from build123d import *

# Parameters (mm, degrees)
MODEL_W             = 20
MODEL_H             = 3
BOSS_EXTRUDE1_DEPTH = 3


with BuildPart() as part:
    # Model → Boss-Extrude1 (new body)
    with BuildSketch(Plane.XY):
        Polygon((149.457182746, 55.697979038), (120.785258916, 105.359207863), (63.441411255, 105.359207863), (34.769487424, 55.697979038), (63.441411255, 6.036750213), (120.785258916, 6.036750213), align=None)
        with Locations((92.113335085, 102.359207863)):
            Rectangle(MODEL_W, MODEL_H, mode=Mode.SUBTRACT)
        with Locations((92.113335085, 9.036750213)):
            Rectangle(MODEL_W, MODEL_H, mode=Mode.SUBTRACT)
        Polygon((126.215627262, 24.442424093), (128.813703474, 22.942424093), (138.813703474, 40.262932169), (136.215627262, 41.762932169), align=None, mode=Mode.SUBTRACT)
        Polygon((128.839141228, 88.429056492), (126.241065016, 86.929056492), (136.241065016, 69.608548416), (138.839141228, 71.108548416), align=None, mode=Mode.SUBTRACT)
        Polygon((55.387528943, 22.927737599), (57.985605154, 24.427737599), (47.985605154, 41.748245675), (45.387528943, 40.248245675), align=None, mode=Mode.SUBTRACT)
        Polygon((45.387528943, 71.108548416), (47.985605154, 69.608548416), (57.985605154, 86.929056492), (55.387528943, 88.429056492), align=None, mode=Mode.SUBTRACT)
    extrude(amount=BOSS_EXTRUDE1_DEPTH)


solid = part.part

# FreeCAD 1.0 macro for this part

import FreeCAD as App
import Part
import Sketcher
from FreeCAD import Vector
Q = App.Units.Quantity


def add_polygon(sketch, points):
    """Adds a closed chain of lines whose ends are joined by coincident constraints."""
    first, n = sketch.GeometryCount, len(points)
    for a, b in zip(points, points[1:] + points[:1]):
        sketch.addGeometry(Part.LineSegment(App.Vector(*a, 0), App.Vector(*b, 0)), False)
    for i in range(n):
        sketch.addConstraint(Sketcher.Constraint("Coincident", first + i, 2, first + (i + 1) % n, 1))

doc = App.newDocument("Part")
body = doc.addObject("PartDesign::Body", "Body")

sketch1 = body.newObject("Sketcher::SketchObject", "Sketch")
sketch1.AttachmentSupport = (doc.getObject("XY_Plane"), [""])
sketch1.MapMode = "FlatFace"
add_polygon(sketch1, [(149.457183, 55.697979), (120.785259, 105.359208), (63.441411, 105.359208), (34.769487, 55.697979), (63.441411, 6.03675), (120.785259, 6.03675)])
add_polygon(sketch1, [(102.113335, 7.53675), (82.113335, 7.53675), (82.113335, 10.53675), (102.113335, 10.53675)])
add_polygon(sketch1, [(57.985605, 24.427738), (55.387529, 22.927738), (45.387529, 40.248246), (47.985605, 41.748246)])
add_polygon(sketch1, [(128.813703, 22.942424), (126.215627, 24.442424), (136.215627, 41.762932), (138.813703, 40.262932)])
add_polygon(sketch1, [(47.985605, 69.608548), (45.387529, 71.108548), (55.387529, 88.429056), (57.985605, 86.929056)])
add_polygon(sketch1, [(102.113335, 100.859208), (82.113335, 100.859208), (82.113335, 103.859208), (102.113335, 103.859208)])
add_polygon(sketch1, [(126.241065, 86.929056), (128.839141, 88.429056), (138.839141, 71.108548), (136.241065, 69.608548)])
sketch1.addConstraint(Sketcher.Constraint("Horizontal", 1))
sketch1.addConstraint(Sketcher.Constraint("Horizontal", 4))
sketch1.addConstraint(Sketcher.Constraint("Horizontal", 6))
sketch1.addConstraint(Sketcher.Constraint("Vertical", 7))
sketch1.addConstraint(Sketcher.Constraint("Horizontal", 8))
sketch1.addConstraint(Sketcher.Constraint("Vertical", 9))
sketch1.addConstraint(Sketcher.Constraint("Horizontal", 22))
sketch1.addConstraint(Sketcher.Constraint("Vertical", 23))
sketch1.addConstraint(Sketcher.Constraint("Horizontal", 24))
sketch1.addConstraint(Sketcher.Constraint("Vertical", 25))
sketch1.addConstraint(Sketcher.Constraint("Parallel", 0, 3))
sketch1.addConstraint(Sketcher.Constraint("Parallel", 2, 5))
sketch1.addConstraint(Sketcher.Constraint("Perpendicular", 3, 10))
sketch1.addConstraint(Sketcher.Constraint("Perpendicular", 10, 11))
sketch1.addConstraint(Sketcher.Constraint("Perpendicular", 11, 12))
sketch1.addConstraint(Sketcher.Constraint("Perpendicular", 12, 13))
sketch1.addConstraint(Sketcher.Constraint("Perpendicular", 5, 14))
sketch1.addConstraint(Sketcher.Constraint("Perpendicular", 14, 15))
sketch1.addConstraint(Sketcher.Constraint("Perpendicular", 15, 16))
sketch1.addConstraint(Sketcher.Constraint("Perpendicular", 16, 17))
sketch1.addConstraint(Sketcher.Constraint("Perpendicular", 17, 18))
sketch1.addConstraint(Sketcher.Constraint("Perpendicular", 18, 19))
sketch1.addConstraint(Sketcher.Constraint("Perpendicular", 19, 20))
sketch1.addConstraint(Sketcher.Constraint("Perpendicular", 20, 21))
sketch1.addConstraint(Sketcher.Constraint("Perpendicular", 13, 26))
sketch1.addConstraint(Sketcher.Constraint("Perpendicular", 26, 27))
sketch1.addConstraint(Sketcher.Constraint("Perpendicular", 27, 28))
sketch1.addConstraint(Sketcher.Constraint("Perpendicular", 28, 29))
sketch1.addConstraint(Sketcher.Constraint("Horizontal", 2, 2, 5, 2))
sketch1.addConstraint(Sketcher.Constraint("Horizontal", 19, 2, 26, 2))
sketch1.addConstraint(Sketcher.Constraint("Horizontal", 18, 2, 27, 2))
sketch1.addConstraint(Sketcher.Constraint("Horizontal", 21, 2, 28, 2))
sketch1.addConstraint(Sketcher.Constraint("Vertical", 1, 2, 3, 2))
sketch1.addConstraint(Sketcher.Constraint("Vertical", 0, 2, 4, 2))
sketch1.addConstraint(Sketcher.Constraint("Vertical", 11, 2, 18, 2))
sketch1.addConstraint(Sketcher.Constraint("Vertical", 10, 2, 19, 2))
sketch1.addConstraint(Sketcher.Constraint("Vertical", 13, 2, 20, 2))
sketch1.addConstraint(Sketcher.Constraint("Vertical", 7, 2, 22, 2))
sketch1.addConstraint(Sketcher.Constraint("Vertical", 9, 2, 24, 2))
sketch1.addConstraint(Sketcher.Constraint("Equal", 9, 23))
sketch1.addConstraint(Sketcher.Constraint("Equal", 12, 14))
sketch1.addConstraint(Sketcher.Constraint("Equal", 13, 15))
sketch1.addConstraint(Sketcher.Constraint("DistanceX", 6, 2, 6, 1, 20.0))
sketch1.addConstraint(Sketcher.Constraint("DistanceY", 7, 1, 7, 2, 3.0))
sketch1.addConstraint(Sketcher.Constraint("Angle", 0, Q("120 deg")))
sketch1.addConstraint(Sketcher.Constraint("Distance", 10, 3.0))
sketch1.addConstraint(Sketcher.Constraint("Distance", 11, 20.0))
sketch1.addConstraint(Sketcher.Constraint("DistanceY", 3, 2, 6, 2, 1.5))
sketch1.addConstraint(Sketcher.Constraint("DistanceY", 22, 2, 1, 2, 4.5))
sketch1.addConstraint(Sketcher.Constraint("DistanceX", 1, 2, 1, 1, 57.343848))
sketch1.addConstraint(Sketcher.Constraint("DistanceX", -1, 1, 0, 2, 120.785259))
sketch1.addConstraint(Sketcher.Constraint("DistanceY", -1, 1, 2, 2, 55.697979))
sketch1.addConstraint(Sketcher.Constraint("DistanceY", -1, 1, 3, 2, 6.03675))
sketch1.addConstraint(Sketcher.Constraint("DistanceX", -1, 1, 10, 2, 55.387529))
sketch1.addConstraint(Sketcher.Constraint("DistanceY", -1, 1, 18, 2, 71.108548))
sketch1.addConstraint(Sketcher.Constraint("DistanceX", -1, 1, 26, 2, 128.839141))
sketch1.addConstraint(Sketcher.Constraint("DistanceY", 10, 2, 2, 2, 32.770241))
sketch1.addConstraint(Sketcher.Constraint("DistanceX", 12, 2, 7, 2, 34.12773))
sketch1.addConstraint(Sketcher.Constraint("DistanceX", 4, 2, 14, 2, 5.430368))
sketch1.addConstraint(Sketcher.Constraint("DistanceY", 4, 2, 15, 2, 35.726182))
pad1 = body.newObject("PartDesign::Pad", "Pad")
pad1.Profile = sketch1
pad1.Length = 3

doc.recompute()
